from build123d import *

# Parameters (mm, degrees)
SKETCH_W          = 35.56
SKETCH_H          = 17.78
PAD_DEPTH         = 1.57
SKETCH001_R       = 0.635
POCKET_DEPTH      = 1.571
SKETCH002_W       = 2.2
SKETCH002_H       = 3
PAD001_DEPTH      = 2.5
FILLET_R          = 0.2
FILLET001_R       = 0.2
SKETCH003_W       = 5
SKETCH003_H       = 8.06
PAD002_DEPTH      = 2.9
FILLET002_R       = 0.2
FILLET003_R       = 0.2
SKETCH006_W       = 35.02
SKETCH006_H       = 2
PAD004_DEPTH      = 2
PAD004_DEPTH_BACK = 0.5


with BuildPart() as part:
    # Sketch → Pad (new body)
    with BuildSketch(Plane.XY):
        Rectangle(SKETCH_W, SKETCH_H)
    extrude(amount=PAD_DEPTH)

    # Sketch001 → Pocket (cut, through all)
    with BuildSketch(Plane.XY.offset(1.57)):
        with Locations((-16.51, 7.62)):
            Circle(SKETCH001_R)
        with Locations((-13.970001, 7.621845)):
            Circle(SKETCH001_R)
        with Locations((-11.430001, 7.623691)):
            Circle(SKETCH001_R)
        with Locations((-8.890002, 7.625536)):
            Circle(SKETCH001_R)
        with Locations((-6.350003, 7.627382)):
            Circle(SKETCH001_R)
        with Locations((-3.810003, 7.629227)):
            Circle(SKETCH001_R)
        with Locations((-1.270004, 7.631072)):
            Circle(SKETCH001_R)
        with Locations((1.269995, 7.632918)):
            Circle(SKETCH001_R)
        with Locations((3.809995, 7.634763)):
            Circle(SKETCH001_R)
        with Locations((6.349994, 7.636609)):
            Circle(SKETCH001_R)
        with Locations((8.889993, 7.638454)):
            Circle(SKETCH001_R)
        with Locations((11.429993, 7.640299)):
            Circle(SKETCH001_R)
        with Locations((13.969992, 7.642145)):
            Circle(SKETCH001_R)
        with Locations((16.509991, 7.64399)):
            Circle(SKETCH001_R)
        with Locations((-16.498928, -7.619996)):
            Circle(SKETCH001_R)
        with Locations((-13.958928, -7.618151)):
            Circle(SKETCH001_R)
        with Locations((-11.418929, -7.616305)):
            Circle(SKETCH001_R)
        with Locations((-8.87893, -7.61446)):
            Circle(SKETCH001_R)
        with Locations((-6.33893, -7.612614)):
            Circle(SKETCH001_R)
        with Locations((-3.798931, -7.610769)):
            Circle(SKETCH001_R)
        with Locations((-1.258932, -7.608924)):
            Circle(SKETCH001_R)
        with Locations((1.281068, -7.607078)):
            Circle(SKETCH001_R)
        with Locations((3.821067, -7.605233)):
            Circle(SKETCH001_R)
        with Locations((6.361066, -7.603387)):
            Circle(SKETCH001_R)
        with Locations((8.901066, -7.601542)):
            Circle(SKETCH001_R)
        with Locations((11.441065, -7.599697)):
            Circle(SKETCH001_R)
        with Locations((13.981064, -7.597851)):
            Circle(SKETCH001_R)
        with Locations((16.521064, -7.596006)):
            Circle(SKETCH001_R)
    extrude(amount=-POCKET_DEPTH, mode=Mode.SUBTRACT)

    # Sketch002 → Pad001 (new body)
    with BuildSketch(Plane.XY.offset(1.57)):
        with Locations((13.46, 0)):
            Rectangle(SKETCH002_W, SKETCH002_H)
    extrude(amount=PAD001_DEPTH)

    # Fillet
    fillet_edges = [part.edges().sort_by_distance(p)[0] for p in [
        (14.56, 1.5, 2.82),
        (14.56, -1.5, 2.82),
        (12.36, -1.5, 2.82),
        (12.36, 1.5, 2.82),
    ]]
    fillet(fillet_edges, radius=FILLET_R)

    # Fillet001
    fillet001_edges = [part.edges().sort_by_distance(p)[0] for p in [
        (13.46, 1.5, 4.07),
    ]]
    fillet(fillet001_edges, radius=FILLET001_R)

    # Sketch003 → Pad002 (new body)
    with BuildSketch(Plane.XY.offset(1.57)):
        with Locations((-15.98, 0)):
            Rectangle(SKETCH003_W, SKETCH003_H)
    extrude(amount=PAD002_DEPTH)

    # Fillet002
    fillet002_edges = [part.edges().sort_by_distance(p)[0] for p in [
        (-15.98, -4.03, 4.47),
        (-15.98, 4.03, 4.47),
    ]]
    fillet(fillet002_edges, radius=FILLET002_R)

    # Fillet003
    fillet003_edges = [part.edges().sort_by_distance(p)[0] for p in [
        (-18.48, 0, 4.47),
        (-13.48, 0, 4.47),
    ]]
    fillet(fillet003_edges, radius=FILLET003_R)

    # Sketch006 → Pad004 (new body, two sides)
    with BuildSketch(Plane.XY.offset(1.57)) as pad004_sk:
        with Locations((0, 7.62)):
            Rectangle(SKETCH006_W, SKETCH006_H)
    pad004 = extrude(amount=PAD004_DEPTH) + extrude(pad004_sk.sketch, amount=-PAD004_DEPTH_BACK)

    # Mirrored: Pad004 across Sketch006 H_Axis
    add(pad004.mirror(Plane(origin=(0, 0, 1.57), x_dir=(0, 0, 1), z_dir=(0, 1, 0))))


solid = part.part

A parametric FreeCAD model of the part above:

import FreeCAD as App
import Part
import Sketcher
from FreeCAD import Vector


def edges_at(feature, points):
    """Names of the edges that pass closest to the given points."""
    edges = feature.Shape.Edges
    near = lambda p: min(range(len(edges)), key=lambda i: edges[i].distToShape(Part.Vertex(*p))[0])
    return sorted({f"Edge{near(p) + 1}" for p in points})


def add_polygon(sketch, points):
    """Adds a closed chain of lines whose ends are joined by coincident constraints."""
    first, n = sketch.GeometryCount, len(points)
    for a, b in zip(points, points[1:] + points[:1]):
        sketch.addGeometry(Part.LineSegment(App.Vector(*a, 0), App.Vector(*b, 0)), False)
    for i in range(n):
        sketch.addConstraint(Sketcher.Constraint("Coincident", first + i, 2, first + (i + 1) % n, 1))

doc = App.newDocument("Part")
body = doc.addObject("PartDesign::Body", "Body")

# Sketch on XY plane
sketch1 = body.newObject("Sketcher::SketchObject", "Sketch")
sketch1.AttachmentSupport = (doc.getObject("XY_Plane"), [""])
sketch1.MapMode = "FlatFace"
add_polygon(sketch1, [(-18, 9), (-18, -9), (18, -9), (18, 9)])  # lines 0-3
sketch1.addConstraint(Sketcher.Constraint("Vertical", 0))
sketch1.addConstraint(Sketcher.Constraint("Horizontal", 1))
sketch1.addConstraint(Sketcher.Constraint("Vertical", 2))
sketch1.addConstraint(Sketcher.Constraint("Horizontal", 3))
sketch1.addConstraint(Sketcher.Constraint("Symmetric", 0, 2, 2, 2, -1, 1))
sketch1.addConstraint(Sketcher.Constraint("DistanceX", 1, 1, 1, 2, 35.56))
sketch1.addConstraint(Sketcher.Constraint("DistanceY", 0, 2, 0, 1, 17.78))
pad1 = body.newObject("PartDesign::Pad", "Pad")
pad1.Profile = sketch1
pad1.Length = 1.57

# Sketch on XY plane
sketch2 = body.newObject("Sketcher::SketchObject", "Sketch001")
sketch2.AttachmentSupport = (doc.getObject("XY_Plane"), [""])
sketch2.MapMode = "FlatFace"
sketch2.AttachmentOffset = App.Placement(Vector(0, 0, 1.57), App.Rotation())
sketch2.addGeometry(Part.Circle(Vector(-16.5, 7.6, 0), Vector(0, 0, 1), 0.6), False)
sketch2.addGeometry(Part.Circle(Vector(-14, 7.6, 0), Vector(0, 0, 1), 0.6), False)
sketch2.addGeometry(Part.Circle(Vector(-11.4, 7.6, 0), Vector(0, 0, 1), 0.6), False)
sketch2.addGeometry(Part.Circle(Vector(-8.9, 7.6, 0), Vector(0, 0, 1), 0.6), False)
sketch2.addGeometry(Part.Circle(Vector(-6.4, 7.6, 0), Vector(0, 0, 1), 0.6), False)
sketch2.addGeometry(Part.Circle(Vector(-3.8, 7.6, 0), Vector(0, 0, 1), 0.6), False)
sketch2.addGeometry(Part.Circle(Vector(-1.3, 7.6, 0), Vector(0, 0, 1), 0.6), False)
sketch2.addGeometry(Part.Circle(Vector(1.3, 7.6, 0), Vector(0, 0, 1), 0.6), False)
sketch2.addGeometry(Part.Circle(Vector(3.8, 7.6, 0), Vector(0, 0, 1), 0.6), False)
sketch2.addGeometry(Part.Circle(Vector(6.3, 7.6, 0), Vector(0, 0, 1), 0.6), False)
sketch2.addGeometry(Part.Circle(Vector(8.9, 7.6, 0), Vector(0, 0, 1), 0.6), False)
sketch2.addGeometry(Part.Circle(Vector(11.4, 7.6, 0), Vector(0, 0, 1), 0.6), False)
sketch2.addGeometry(Part.Circle(Vector(14, 7.6, 0), Vector(0, 0, 1), 0.6), False)
sketch2.addGeometry(Part.Circle(Vector(16.5, 7.6, 0), Vector(0, 0, 1), 0.6), False)
sketch2.addGeometry(Part.Circle(Vector(-16.5, -7.6, 0), Vector(0, 0, 1), 0.6), False)
sketch2.addGeometry(Part.Circle(Vector(-14, -7.6, 0), Vector(0, 0, 1), 0.6), False)
sketch2.addGeometry(Part.Circle(Vector(-11.4, -7.6, 0), Vector(0, 0, 1), 0.6), False)
sketch2.addGeometry(Part.Circle(Vector(-8.9, -7.6, 0), Vector(0, 0, 1), 0.6), False)
sketch2.addGeometry(Part.Circle(Vector(-6.3, -7.6, 0), Vector(0, 0, 1), 0.6), False)
sketch2.addGeometry(Part.Circle(Vector(-3.8, -7.6, 0), Vector(0, 0, 1), 0.6), False)
sketch2.addGeometry(Part.Circle(Vector(-1.3, -7.6, 0), Vector(0, 0, 1), 0.6), False)
sketch2.addGeometry(Part.Circle(Vector(1.3, -7.6, 0), Vector(0, 0, 1), 0.6), False)
sketch2.addGeometry(Part.Circle(Vector(3.8, -7.6, 0), Vector(0, 0, 1), 0.6), False)
sketch2.addGeometry(Part.Circle(Vector(6.4, -7.6, 0), Vector(0, 0, 1), 0.6), False)
sketch2.addGeometry(Part.Circle(Vector(8.9, -7.6, 0), Vector(0, 0, 1), 0.6), False)
sketch2.addGeometry(Part.Circle(Vector(11.4, -7.6, 0), Vector(0, 0, 1), 0.6), False)
sketch2.addGeometry(Part.Circle(Vector(14, -7.6, 0), Vector(0, 0, 1), 0.6), False)
sketch2.addGeometry(Part.Circle(Vector(16.5, -7.6, 0), Vector(0, 0, 1), 0.6), False)
sketch2.addConstraint(Sketcher.Constraint("Equal", 0, 1))
sketch2.addConstraint(Sketcher.Constraint("Equal", 1, 2))
sketch2.addConstraint(Sketcher.Constraint("Equal", 2, 3))
sketch2.addConstraint(Sketcher.Constraint("Equal", 3, 4))
sketch2.addConstraint(Sketcher.Constraint("Equal", 4, 5))
sketch2.addConstraint(Sketcher.Constraint("Equal", 5, 6))
sketch2.addConstraint(Sketcher.Constraint("Equal", 6, 7))
sketch2.addConstraint(Sketcher.Constraint("Equal", 7, 8))
sketch2.addConstraint(Sketcher.Constraint("Equal", 8, 9))
sketch2.addConstraint(Sketcher.Constraint("Equal", 9, 10))
sketch2.addConstraint(Sketcher.Constraint("Equal", 10, 11))
sketch2.addConstraint(Sketcher.Constraint("Equal", 11, 12))
sketch2.addConstraint(Sketcher.Constraint("Equal", 12, 13))
sketch2.addConstraint(Sketcher.Constraint("Equal", 13, 14))
sketch2.addConstraint(Sketcher.Constraint("Equal", 14, 15))
sketch2.addConstraint(Sketcher.Constraint("Equal", 15, 16))
sketch2.addConstraint(Sketcher.Constraint("Equal", 16, 17))
sketch2.addConstraint(Sketcher.Constraint("Equal", 17, 18))
sketch2.addConstraint(Sketcher.Constraint("Equal", 18, 19))
sketch2.addConstraint(Sketcher.Constraint("Equal", 19, 20))
sketch2.addConstraint(Sketcher.Constraint("Equal", 20, 21))
sketch2.addConstraint(Sketcher.Constraint("Equal", 21, 22))
sketch2.addConstraint(Sketcher.Constraint("Equal", 22, 23))
sketch2.addConstraint(Sketcher.Constraint("Equal", 23, 24))
sketch2.addConstraint(Sketcher.Constraint("Equal", 24, 25))
sketch2.addConstraint(Sketcher.Constraint("Equal", 25, 26))
sketch2.addConstraint(Sketcher.Constraint("Equal", 26, 27))
sketch2.addConstraint(Sketcher.Constraint("Diameter", 0, 1.27))
sketch2.addConstraint(Sketcher.Constraint("DistanceX", 0, 3, -1, 1, 16.51))
sketch2.addConstraint(Sketcher.Constraint("DistanceY", -1, 1, 0, 3, 7.62))
sketch2.addConstraint(Sketcher.Constraint("DistanceX", 1, 3, -1, 1, 13.970001))
sketch2.addConstraint(Sketcher.Constraint("DistanceX", 2, 3, -1, 1, 11.430001))
sketch2.addConstraint(Sketcher.Constraint("DistanceX", 2, 3, 3, 3, 2.539999))
sketch2.addConstraint(Sketcher.Constraint("DistanceX", 3, 3, 4, 3, 2.539999))
sketch2.addConstraint(Sketcher.Constraint("DistanceX", 4, 3, 5, 3, 2.54))
sketch2.addConstraint(Sketcher.Constraint("DistanceX", 5, 3, 6, 3, 2.539999))
sketch2.addConstraint(Sketcher.Constraint("DistanceX", 6, 3, 7, 3, 2.539999))
sketch2.addConstraint(Sketcher.Constraint("DistanceX", 7, 3, 8, 3, 2.54))
sketch2.addConstraint(Sketcher.Constraint("DistanceX", 8, 3, 9, 3, 2.539999))
sketch2.addConstraint(Sketcher.Constraint("DistanceX", 9, 3, 10, 3, 2.539999))
sketch2.addConstraint(Sketcher.Constraint("DistanceX", 10, 3, 11, 3, 2.54))
sketch2.addConstraint(Sketcher.Constraint("DistanceX", 11, 3, 12, 3, 2.539999))
sketch2.addConstraint(Sketcher.Constraint("DistanceX", 12, 3, 13, 3, 2.539999))
sketch2.addConstraint(Sketcher.Constraint("DistanceX", 14, 3, 15, 3, 2.54))
sketch2.addConstraint(Sketcher.Constraint("DistanceX", 15, 3, 16, 3, 2.539999))
sketch2.addConstraint(Sketcher.Constraint("DistanceX", 16, 3, 17, 3, 2.539999))
sketch2.addConstraint(Sketcher.Constraint("DistanceX", 17, 3, 18, 3, 2.54))
sketch2.addConstraint(Sketcher.Constraint("DistanceX", 18, 3, 19, 3, 2.539999))
sketch2.addConstraint(Sketcher.Constraint("DistanceX", 19, 3, 20, 3, 2.539999))
sketch2.addConstraint(Sketcher.Constraint("DistanceX", 20, 3, 21, 3, 2.54))
sketch2.addConstraint(Sketcher.Constraint("DistanceX", 21, 3, 22, 3, 2.539999))
sketch2.addConstraint(Sketcher.Constraint("DistanceX", 22, 3, 23, 3, 2.539999))
sketch2.addConstraint(Sketcher.Constraint("DistanceX", 23, 3, 24, 3, 2.54))
sketch2.addConstraint(Sketcher.Constraint("DistanceX", 24, 3, 25, 3, 2.539999))
sketch2.addConstraint(Sketcher.Constraint("DistanceX", 25, 3, 26, 3, 2.539999))
sketch2.addConstraint(Sketcher.Constraint("DistanceX", 26, 3, 27, 3, 2.54))
sketch2.addConstraint(Sketcher.Constraint("DistanceY", -1, 1, 11, 3, 7.640299))
sketch2.addConstraint(Sketcher.Constraint("DistanceY", -1, 1, 2, 3, 7.623691))
sketch2.addConstraint(Sketcher.Constraint("DistanceY", -1, 1, 6, 3, 7.631072))
sketch2.addConstraint(Sketcher.Constraint("DistanceY", -1, 1, 9, 3, 7.636609))
sketch2.addConstraint(Sketcher.Constraint("DistanceY", -1, 1, 13, 3, 7.64399))
sketch2.addConstraint(Sketcher.Constraint("DistanceY", 15, 3, -1, 1, 7.618151))
sketch2.addConstraint(Sketcher.Constraint("DistanceX", 16, 3, -1, 1, 11.418929))
sketch2.addConstraint(Sketcher.Constraint("DistanceY", 17, 3, -1, 1, 7.61446))
sketch2.addConstraint(Sketcher.Constraint("DistanceY", 19, 3, -1, 1, 7.610769))
sketch2.addConstraint(Sketcher.Constraint("DistanceY", 26, 3, -1, 1, 7.597851))
sketch2.addConstraint(Sketcher.Constraint("DistanceY", 1, 3, 3, 3, 0.003691))
sketch2.addConstraint(Sketcher.Constraint("DistanceY", 2, 3, 4, 3, 0.003691))
sketch2.addConstraint(Sketcher.Constraint("DistanceY", 3, 3, 5, 3, 0.003691))
sketch2.addConstraint(Sketcher.Constraint("DistanceY", 5, 3, 7, 3, 0.003691))
sketch2.addConstraint(Sketcher.Constraint("DistanceY", 6, 3, 8, 3, 0.003691))
sketch2.addConstraint(Sketcher.Constraint("DistanceY", 7, 3, 9, 3, 0.003691))
sketch2.addConstraint(Sketcher.Constraint("DistanceY", 8, 3, 10, 3, 0.003691))
sketch2.addConstraint(Sketcher.Constraint("DistanceY", 10, 3, 12, 3, 0.003691))
sketch2.addConstraint(Sketcher.Constraint("DistanceY", 14, 3, 1, 3, 15.241841))
sketch2.addConstraint(Sketcher.Constraint("DistanceY", 14, 3, 16, 3, 0.003691))
sketch2.addConstraint(Sketcher.Constraint("DistanceY", 16, 3, 18, 3, 0.003691))
sketch2.addConstraint(Sketcher.Constraint("DistanceY", 18, 3, 20, 3, 0.00369))
sketch2.addConstraint(Sketcher.Constraint("DistanceY", 19, 3, 21, 3, 0.003691))
sketch2.addConstraint(Sketcher.Constraint("DistanceY", 20, 3, 22, 3, 0.003691))
sketch2.addConstraint(Sketcher.Constraint("DistanceY", 21, 3, 23, 3, 0.003691))
sketch2.addConstraint(Sketcher.Constraint("DistanceY", 22, 3, 24, 3, 0.003691))
sketch2.addConstraint(Sketcher.Constraint("DistanceY", 23, 3, 25, 3, 0.00369))
sketch2.addConstraint(Sketcher.Constraint("DistanceY", 25, 3, 27, 3, 0.003691))
pocket1 = body.newObject("PartDesign::Pocket", "Pocket")
pocket1.Profile = sketch2
pocket1.Type = "ThroughAll"

# Sketch on XY plane
sketch3 = body.newObject("Sketcher::SketchObject", "Sketch002")
sketch3.AttachmentSupport = (doc.getObject("XY_Plane"), [""])
sketch3.MapMode = "FlatFace"
sketch3.AttachmentOffset = App.Placement(Vector(0, 0, 1.57), App.Rotation())
add_polygon(sketch3, [(12.4, 1.5), (12.4, -1.5), (14.6, -1.5), (14.6, 1.5)])  # lines 0-3
sketch3.addConstraint(Sketcher.Constraint("Vertical", 0))
sketch3.addConstraint(Sketcher.Constraint("Horizontal", 1))
sketch3.addConstraint(Sketcher.Constraint("Vertical", 2))
sketch3.addConstraint(Sketcher.Constraint("Horizontal", 3))
sketch3.addConstraint(Sketcher.Constraint("DistanceY", 0, 2, 0, 1, 3.0))
sketch3.addConstraint(Sketcher.Constraint("DistanceX", 1, 1, 1, 2, 2.2))
sketch3.addConstraint(Sketcher.Constraint("DistanceY", 0, 2, -1, 1, 1.5))
sketch3.addConstraint(Sketcher.Constraint("DistanceX", -1, 1, 0, 2, 12.36))
pad2 = body.newObject("PartDesign::Pad", "Pad001")
pad2.Profile = sketch3
pad2.Length = 2.5
doc.recompute()

fillet = body.newObject("PartDesign::Fillet", "Fillet")
fillet.Base = (pad2, edges_at(pad2, [
    (14.56, 1.5, 2.82),
    (14.56, -1.5, 2.82),
    (12.36, -1.5, 2.82),
    (12.36, 1.5, 2.82),
]))
fillet.Radius = 0.2
doc.recompute()

fillet2 = body.newObject("PartDesign::Fillet", "Fillet001")
fillet2.Base = (fillet, edges_at(fillet, [(13.46, 1.5, 4.07)]))
fillet2.Radius = 0.2

# Sketch on XY plane
sketch4 = body.newObject("Sketcher::SketchObject", "Sketch003")
sketch4.AttachmentSupport = (doc.getObject("XY_Plane"), [""])
sketch4.MapMode = "FlatFace"
sketch4.AttachmentOffset = App.Placement(Vector(0, 0, 1.57), App.Rotation())
add_polygon(sketch4, [(-18, 4), (-18, -4), (-13, -4), (-13, 4)])  # lines 0-3
sketch4.addConstraint(Sketcher.Constraint("Vertical", 0))
sketch4.addConstraint(Sketcher.Constraint("Horizontal", 1))
sketch4.addConstraint(Sketcher.Constraint("Vertical", 2))
sketch4.addConstraint(Sketcher.Constraint("Horizontal", 3))
sketch4.addConstraint(Sketcher.Constraint("DistanceX", 1, 1, 1, 2, 5.0))
sketch4.addConstraint(Sketcher.Constraint("DistanceY", 0, 2, 0, 1, 8.06))
sketch4.addConstraint(Sketcher.Constraint("DistanceX", 0, 2, -1, 1, 18.48))
sketch4.addConstraint(Sketcher.Constraint("DistanceY", 0, 2, -1, 1, 4.03))
pad3 = body.newObject("PartDesign::Pad", "Pad002")
pad3.Profile = sketch4
pad3.Length = 2.9
doc.recompute()

fillet3 = body.newObject("PartDesign::Fillet", "Fillet002")
fillet3.Base = (pad3, edges_at(pad3, [(-15.98, -4.03, 4.47), (-15.98, 4.03, 4.47)]))
fillet3.Radius = 0.2
doc.recompute()

fillet4 = body.newObject("PartDesign::Fillet", "Fillet003")
fillet4.Base = (fillet3, edges_at(fillet3, [(-18.48, 0, 4.47), (-13.48, 0, 4.47)]))
fillet4.Radius = 0.2

# Sketch on XY plane
sketch5 = body.newObject("Sketcher::SketchObject", "Sketch004")
sketch5.AttachmentSupport = (doc.getObject("XY_Plane"), [""])
sketch5.MapMode = "FlatFace"
sketch5.AttachmentOffset = App.Placement(Vector(0, 0, 1.57), App.Rotation())
add_polygon(sketch5, [(-17.5, 8.6), (-17.5, 6.6), (17.5, 6.6), (17.5, 8.6)])  # lines 0-3
sketch5.addConstraint(Sketcher.Constraint("Vertical", 0))
sketch5.addConstraint(Sketcher.Constraint("Horizontal", 1))
sketch5.addConstraint(Sketcher.Constraint("Vertical", 2))
sketch5.addConstraint(Sketcher.Constraint("Horizontal", 3))
sketch5.addConstraint(Sketcher.Constraint("DistanceY", 0, 2, 0, 1, 2.0))
sketch5.addConstraint(Sketcher.Constraint("DistanceX", 1, 1, 1, 2, 35.02))
sketch5.addConstraint(Sketcher.Constraint("DistanceX", 0, 2, -1, 1, 17.51))
sketch5.addConstraint(Sketcher.Constraint("DistanceY", -1, 1, 0, 2, 6.62))
pad4 = body.newObject("PartDesign::Pad", "Pad003")
pad4.Profile = sketch5
pad4.Type = "TwoLengths"
pad4.Length = 2
pad4.Length2 = 0.5
doc.recompute()

mirrored = body.newObject("PartDesign::Mirrored", "Mirrored")
mirrored.Originals = [pad4]
mirrored.MirrorPlane = (doc.getObject("XZ_Plane"), [""])
body.Tip = mirrored

doc.recompute()
